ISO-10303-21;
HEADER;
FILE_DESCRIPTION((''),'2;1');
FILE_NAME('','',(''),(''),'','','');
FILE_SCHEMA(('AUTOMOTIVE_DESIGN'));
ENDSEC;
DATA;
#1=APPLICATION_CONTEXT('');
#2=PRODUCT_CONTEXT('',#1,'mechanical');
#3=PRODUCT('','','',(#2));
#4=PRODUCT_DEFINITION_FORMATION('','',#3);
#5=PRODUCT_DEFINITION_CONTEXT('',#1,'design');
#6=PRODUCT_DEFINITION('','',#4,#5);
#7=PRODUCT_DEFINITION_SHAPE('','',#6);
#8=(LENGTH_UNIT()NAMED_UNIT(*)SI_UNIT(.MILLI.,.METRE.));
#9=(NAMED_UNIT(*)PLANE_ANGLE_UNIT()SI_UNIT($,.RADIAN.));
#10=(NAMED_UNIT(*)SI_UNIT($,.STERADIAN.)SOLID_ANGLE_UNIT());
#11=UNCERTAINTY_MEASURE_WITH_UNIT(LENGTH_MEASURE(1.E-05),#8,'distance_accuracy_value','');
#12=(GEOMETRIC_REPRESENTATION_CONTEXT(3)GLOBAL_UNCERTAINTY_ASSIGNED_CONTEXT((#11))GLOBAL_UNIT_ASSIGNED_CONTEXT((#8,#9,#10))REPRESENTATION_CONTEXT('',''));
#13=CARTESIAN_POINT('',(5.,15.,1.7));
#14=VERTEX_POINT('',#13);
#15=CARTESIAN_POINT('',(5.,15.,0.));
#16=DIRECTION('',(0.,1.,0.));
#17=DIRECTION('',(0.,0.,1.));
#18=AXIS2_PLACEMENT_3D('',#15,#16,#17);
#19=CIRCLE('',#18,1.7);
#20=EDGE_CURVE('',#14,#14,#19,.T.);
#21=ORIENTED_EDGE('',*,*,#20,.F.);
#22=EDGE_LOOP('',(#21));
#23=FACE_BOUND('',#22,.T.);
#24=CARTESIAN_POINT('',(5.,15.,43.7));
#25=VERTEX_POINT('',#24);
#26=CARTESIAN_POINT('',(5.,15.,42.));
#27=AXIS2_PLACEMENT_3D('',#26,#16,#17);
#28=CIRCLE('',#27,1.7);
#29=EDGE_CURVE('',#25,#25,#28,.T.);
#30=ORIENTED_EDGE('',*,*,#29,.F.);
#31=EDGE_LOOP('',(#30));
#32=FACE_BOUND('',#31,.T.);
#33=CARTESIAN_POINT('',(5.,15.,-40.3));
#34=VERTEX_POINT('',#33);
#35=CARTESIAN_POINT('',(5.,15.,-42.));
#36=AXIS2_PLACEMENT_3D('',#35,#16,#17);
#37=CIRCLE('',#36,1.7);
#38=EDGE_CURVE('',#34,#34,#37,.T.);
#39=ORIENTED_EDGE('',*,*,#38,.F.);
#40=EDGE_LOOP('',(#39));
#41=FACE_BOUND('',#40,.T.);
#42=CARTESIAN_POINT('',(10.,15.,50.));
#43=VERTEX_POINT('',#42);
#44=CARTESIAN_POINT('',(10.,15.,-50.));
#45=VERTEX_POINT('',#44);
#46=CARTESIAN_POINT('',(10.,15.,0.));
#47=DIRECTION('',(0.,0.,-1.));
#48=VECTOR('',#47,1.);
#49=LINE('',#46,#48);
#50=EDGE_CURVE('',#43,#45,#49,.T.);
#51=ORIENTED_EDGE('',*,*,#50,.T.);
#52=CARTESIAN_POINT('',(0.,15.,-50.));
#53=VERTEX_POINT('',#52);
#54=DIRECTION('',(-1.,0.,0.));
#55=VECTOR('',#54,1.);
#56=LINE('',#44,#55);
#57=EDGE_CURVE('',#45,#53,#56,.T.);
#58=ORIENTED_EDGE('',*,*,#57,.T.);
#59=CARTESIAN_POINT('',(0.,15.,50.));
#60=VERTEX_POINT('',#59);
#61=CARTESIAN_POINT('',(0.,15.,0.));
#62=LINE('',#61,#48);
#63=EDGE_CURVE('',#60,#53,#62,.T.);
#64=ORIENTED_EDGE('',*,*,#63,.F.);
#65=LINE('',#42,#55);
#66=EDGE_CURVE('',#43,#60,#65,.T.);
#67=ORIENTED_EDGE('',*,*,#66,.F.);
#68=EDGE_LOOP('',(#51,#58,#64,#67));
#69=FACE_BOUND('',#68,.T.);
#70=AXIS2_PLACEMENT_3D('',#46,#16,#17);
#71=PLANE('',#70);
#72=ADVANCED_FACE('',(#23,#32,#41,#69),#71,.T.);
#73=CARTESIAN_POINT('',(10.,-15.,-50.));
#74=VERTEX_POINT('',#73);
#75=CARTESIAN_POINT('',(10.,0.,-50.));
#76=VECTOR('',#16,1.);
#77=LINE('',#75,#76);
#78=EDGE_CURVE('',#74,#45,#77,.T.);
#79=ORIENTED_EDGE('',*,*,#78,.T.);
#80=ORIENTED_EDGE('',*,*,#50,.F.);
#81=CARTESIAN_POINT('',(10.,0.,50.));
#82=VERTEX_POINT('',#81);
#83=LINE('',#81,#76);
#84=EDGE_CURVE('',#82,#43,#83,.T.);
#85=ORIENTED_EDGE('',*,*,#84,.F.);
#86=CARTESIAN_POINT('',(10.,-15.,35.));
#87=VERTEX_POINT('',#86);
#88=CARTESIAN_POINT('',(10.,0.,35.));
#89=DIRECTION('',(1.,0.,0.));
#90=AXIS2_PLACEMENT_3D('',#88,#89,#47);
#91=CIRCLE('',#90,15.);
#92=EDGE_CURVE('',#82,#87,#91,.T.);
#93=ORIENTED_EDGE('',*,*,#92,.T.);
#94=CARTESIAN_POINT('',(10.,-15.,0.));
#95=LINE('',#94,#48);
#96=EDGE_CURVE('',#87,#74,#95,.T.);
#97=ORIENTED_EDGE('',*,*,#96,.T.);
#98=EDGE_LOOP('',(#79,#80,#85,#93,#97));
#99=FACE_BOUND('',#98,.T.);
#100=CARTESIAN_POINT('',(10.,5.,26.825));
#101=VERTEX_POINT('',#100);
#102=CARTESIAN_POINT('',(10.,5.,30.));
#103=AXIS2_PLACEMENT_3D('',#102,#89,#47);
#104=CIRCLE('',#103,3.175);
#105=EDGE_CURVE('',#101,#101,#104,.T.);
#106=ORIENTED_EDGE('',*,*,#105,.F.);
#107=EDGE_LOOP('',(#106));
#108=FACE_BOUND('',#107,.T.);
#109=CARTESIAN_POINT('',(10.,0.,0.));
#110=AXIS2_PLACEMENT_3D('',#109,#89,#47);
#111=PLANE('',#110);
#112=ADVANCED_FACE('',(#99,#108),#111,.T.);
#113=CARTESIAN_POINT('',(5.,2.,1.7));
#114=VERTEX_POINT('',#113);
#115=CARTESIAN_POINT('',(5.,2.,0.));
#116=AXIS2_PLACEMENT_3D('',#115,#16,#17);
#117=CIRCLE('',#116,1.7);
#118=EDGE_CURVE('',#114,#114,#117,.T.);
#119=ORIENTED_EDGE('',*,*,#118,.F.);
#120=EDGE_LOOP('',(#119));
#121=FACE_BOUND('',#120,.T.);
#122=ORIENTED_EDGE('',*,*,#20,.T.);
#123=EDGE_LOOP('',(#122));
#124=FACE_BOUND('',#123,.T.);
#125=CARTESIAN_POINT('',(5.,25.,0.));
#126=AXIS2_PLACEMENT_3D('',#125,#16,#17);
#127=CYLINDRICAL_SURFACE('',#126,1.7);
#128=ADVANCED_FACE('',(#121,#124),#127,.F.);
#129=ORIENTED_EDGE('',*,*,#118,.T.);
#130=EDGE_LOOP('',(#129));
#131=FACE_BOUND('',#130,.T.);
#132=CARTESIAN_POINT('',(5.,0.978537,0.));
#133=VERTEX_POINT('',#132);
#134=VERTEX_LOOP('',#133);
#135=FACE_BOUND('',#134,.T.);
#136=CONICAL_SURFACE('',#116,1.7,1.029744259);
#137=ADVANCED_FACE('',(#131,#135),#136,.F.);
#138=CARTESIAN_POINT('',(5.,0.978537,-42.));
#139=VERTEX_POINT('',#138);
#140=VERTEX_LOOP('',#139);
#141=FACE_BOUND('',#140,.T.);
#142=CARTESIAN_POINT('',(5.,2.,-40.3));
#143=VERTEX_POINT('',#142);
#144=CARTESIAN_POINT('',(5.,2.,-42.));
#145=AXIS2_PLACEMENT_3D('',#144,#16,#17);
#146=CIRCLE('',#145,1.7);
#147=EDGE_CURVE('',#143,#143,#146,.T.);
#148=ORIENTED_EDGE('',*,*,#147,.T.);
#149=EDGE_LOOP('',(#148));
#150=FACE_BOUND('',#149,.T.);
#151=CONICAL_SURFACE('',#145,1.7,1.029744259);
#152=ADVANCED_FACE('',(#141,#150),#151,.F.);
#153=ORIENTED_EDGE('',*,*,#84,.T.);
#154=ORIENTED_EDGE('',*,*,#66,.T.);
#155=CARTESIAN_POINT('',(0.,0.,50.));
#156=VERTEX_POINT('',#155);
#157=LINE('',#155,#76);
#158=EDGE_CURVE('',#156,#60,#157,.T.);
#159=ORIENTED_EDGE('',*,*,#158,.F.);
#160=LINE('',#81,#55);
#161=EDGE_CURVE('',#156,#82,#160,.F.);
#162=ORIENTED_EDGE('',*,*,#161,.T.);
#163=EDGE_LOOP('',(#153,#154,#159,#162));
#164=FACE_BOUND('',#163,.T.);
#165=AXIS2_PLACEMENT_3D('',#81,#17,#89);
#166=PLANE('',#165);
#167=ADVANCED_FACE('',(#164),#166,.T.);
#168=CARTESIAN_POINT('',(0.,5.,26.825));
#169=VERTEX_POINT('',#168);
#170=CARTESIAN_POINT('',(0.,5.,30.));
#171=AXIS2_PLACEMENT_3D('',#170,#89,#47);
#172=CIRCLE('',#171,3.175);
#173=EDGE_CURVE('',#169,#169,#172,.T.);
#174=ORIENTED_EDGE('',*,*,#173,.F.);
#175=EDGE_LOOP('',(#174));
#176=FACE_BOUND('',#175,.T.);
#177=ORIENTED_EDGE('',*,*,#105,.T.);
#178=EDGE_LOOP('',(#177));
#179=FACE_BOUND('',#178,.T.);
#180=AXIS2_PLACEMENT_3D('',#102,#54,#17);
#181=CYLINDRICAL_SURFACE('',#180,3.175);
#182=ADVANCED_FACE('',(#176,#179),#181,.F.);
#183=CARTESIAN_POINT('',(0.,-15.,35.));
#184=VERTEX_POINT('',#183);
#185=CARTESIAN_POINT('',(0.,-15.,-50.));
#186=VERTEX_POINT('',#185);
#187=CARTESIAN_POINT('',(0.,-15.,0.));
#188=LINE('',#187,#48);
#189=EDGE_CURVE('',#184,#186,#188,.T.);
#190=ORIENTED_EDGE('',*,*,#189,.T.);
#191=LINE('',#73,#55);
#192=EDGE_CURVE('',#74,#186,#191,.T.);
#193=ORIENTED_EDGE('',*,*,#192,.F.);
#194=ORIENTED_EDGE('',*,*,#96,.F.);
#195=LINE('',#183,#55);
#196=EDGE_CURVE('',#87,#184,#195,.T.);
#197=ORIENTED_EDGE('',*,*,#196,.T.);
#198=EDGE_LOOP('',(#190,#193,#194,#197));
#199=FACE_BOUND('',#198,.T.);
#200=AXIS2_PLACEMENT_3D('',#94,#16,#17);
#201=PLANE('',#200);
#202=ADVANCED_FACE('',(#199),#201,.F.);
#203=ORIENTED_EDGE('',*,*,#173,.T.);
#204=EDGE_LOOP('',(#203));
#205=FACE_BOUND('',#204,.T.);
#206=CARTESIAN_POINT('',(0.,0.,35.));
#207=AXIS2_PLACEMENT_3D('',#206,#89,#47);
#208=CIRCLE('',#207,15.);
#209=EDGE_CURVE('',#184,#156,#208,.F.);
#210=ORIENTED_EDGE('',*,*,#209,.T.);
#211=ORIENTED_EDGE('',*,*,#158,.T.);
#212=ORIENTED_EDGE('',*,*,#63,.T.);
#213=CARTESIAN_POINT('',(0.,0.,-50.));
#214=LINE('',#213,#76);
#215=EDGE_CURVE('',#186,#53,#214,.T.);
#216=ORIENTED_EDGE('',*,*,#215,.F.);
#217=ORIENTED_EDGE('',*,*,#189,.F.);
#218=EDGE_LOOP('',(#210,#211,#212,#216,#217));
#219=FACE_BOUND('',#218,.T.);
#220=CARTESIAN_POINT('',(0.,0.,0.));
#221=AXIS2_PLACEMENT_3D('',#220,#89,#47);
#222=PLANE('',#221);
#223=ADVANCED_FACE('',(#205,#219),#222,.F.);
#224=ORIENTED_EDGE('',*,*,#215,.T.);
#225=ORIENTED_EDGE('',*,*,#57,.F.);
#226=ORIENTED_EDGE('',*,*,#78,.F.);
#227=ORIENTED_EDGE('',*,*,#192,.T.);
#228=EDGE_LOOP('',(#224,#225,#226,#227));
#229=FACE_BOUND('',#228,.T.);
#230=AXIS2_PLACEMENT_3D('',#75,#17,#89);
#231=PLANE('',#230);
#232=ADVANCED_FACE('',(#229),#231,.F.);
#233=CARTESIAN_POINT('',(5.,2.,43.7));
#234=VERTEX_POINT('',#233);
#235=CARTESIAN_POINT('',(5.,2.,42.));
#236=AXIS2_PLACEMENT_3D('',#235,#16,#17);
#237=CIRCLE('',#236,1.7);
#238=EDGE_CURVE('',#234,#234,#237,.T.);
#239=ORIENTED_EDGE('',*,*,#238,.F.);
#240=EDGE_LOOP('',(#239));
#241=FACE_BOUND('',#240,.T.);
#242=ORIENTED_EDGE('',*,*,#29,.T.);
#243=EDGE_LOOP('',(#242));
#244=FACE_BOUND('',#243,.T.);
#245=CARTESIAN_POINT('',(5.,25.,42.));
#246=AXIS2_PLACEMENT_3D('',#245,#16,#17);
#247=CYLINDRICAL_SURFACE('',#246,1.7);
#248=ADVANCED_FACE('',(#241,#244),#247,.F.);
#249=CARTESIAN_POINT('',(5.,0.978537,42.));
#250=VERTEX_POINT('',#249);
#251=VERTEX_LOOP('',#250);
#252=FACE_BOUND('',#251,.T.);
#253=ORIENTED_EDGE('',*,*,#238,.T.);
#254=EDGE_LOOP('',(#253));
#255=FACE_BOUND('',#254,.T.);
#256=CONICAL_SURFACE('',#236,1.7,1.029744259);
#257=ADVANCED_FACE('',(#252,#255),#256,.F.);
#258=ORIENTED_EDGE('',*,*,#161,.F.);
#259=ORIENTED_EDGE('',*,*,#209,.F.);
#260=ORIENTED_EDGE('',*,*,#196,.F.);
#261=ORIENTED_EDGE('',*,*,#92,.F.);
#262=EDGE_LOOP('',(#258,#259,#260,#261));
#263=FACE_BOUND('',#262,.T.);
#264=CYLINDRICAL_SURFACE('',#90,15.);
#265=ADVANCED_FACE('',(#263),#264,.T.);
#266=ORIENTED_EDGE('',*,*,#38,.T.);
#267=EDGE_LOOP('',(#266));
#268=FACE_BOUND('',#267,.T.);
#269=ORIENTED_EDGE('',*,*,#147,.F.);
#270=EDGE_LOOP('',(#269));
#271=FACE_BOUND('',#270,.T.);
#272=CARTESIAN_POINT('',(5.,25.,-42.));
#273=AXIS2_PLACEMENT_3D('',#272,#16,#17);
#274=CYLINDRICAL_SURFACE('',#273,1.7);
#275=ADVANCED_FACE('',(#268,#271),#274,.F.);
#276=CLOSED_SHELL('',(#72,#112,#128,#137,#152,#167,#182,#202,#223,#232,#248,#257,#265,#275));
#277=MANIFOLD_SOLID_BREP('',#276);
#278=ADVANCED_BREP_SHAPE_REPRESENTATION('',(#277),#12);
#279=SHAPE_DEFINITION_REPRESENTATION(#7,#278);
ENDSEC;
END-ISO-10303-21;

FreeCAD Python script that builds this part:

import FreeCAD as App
import Part
import Sketcher

V = App.Vector


def edges_at(feature, points):
    """Names of the edges that pass closest to the given points."""
    edges = feature.Shape.Edges
    near = lambda p: min(range(len(edges)), key=lambda i: edges[i].distToShape(Part.Vertex(*p))[0])
    return sorted({f"Edge{near(p) + 1}" for p in points})

doc = App.newDocument("Part")
params = doc.addObject("Spreadsheet::Sheet", "Params")
for row, (alias, value) in enumerate([
    ("sketch1_diameter", "6.35 mm"),
    ("sketch1_width", "30 mm"),
    ("sketch1_height", "100 mm"),
    ("pad1_length", "10 mm"),
    ("fillet_radius", "15 mm"),
    ("sketch2_diameter", "3.4 mm"),
    ("hole_diameter", "3.4 mm"),
    ("hole_depth", "23 mm"),
    ("hole_cbore_diameter", "6.5 mm"),
    ("hole_cbore_depth", "3 mm"),
], start=1):
    params.set(f"A{row}", alias)
    params.set(f"B{row}", "=" + value)
    params.setAlias(f"B{row}", alias)

body = doc.addObject("PartDesign::Body", "Body")

# Sketch on YZ plane
sketch1 = body.newObject("Sketcher::SketchObject", "Sketch")
sketch1.AttachmentSupport = (doc.getObject("YZ_Plane"), [""])
sketch1.MapMode = "FlatFace"
sketch1.addGeometry(Part.LineSegment(V(15, 50, 0), V(-15, 50, 0)), False)
sketch1.addGeometry(Part.LineSegment(V(-15, 50, 0), V(-15, -50, 0)), False)
sketch1.addGeometry(Part.LineSegment(V(-15, -50, 0), V(15, -50, 0)), False)
sketch1.addGeometry(Part.LineSegment(V(15, -50, 0), V(15, 50, 0)), False)
sketch1.addGeometry(Part.Circle(V(5, 30, 0), V(0, 0, 1), 3.175), False)
sketch1.addConstraint(Sketcher.Constraint("Coincident", 0, 2, 1, 1))
sketch1.addConstraint(Sketcher.Constraint("Coincident", 1, 2, 2, 1))
sketch1.addConstraint(Sketcher.Constraint("Coincident", 2, 2, 3, 1))
sketch1.addConstraint(Sketcher.Constraint("Coincident", 3, 2, 0, 1))
sketch1.addConstraint(Sketcher.Constraint("Horizontal", 0))
sketch1.addConstraint(Sketcher.Constraint("Vertical", 1))
sketch1.addConstraint(Sketcher.Constraint("Horizontal", 2))
sketch1.addConstraint(Sketcher.Constraint("Vertical", 3))
sketch1.addConstraint(Sketcher.Constraint("Symmetric", 0, 2, 2, 2, -1, 1))
sketch1.addConstraint(Sketcher.Constraint("Diameter", 4, 6.35))
sketch1.addConstraint(Sketcher.Constraint("DistanceX", 0, 2, 0, 1, 30.0))
sketch1.addConstraint(Sketcher.Constraint("DistanceY", 1, 2, 1, 1, 100.0))
sketch1.addConstraint(Sketcher.Constraint("DistanceX", -1, 1, 4, 3, 5.0))
sketch1.addConstraint(Sketcher.Constraint("DistanceY", -1, 1, 4, 3, 30.0))
sketch1.setExpression("Constraints[9]", "Params.sketch1_diameter")
sketch1.setExpression("Constraints[10]", "Params.sketch1_width")
sketch1.setExpression("Constraints[11]", "Params.sketch1_height")
pad1 = body.newObject("PartDesign::Pad", "Pad")
pad1.Profile = sketch1
pad1.setExpression("Length", "Params.pad1_length")
doc.recompute()

fillet = body.newObject("PartDesign::Fillet", "Fillet")
fillet.Base = (pad1, edges_at(pad1, [(5, -15, 50)]))
fillet.setExpression("Radius", "Params.fillet_radius")

# Sketch on XZ plane
sketch2 = body.newObject("Sketcher::SketchObject", "Sketch001")
sketch2.AttachmentSupport = (doc.getObject("XZ_Plane"), [""])
sketch2.MapMode = "FlatFace"
sketch2.AttachmentOffset = App.Placement(V(0, 0, -25), App.Rotation())
sketch2.addGeometry(Part.Circle(V(115, -42, 0), V(0, 0, 1), 1.7), False)
sketch2.addGeometry(Part.Circle(V(115, 36, 0), V(0, 0, 1), 1.7), False)
sketch2.addGeometry(Part.Circle(V(5, -42, 0), V(0, 0, 1), 1.7), False)
sketch2.addGeometry(Part.Circle(V(5, 42, 0), V(0, 0, 1), 1.7), False)
sketch2.addGeometry(Part.Circle(V(5, 0, 0), V(0, 0, 1), 1.7), False)
sketch2.addGeometry(Part.Circle(V(115, -3, 0), V(0, 0, 1), 1.7), False)
sketch2.addConstraint(Sketcher.Constraint("Equal", 0, 1))
sketch2.addConstraint(Sketcher.Constraint("Equal", 1, 2))
sketch2.addConstraint(Sketcher.Constraint("Equal", 2, 3))
sketch2.addConstraint(Sketcher.Constraint("Equal", 3, 4))
sketch2.addConstraint(Sketcher.Constraint("Equal", 4, 5))
sketch2.addConstraint(Sketcher.Constraint("Symmetric", 2, 3, 3, 3, -1))
sketch2.addConstraint(Sketcher.Constraint("PointOnObject", 4, 3, -1))
sketch2.addConstraint(Sketcher.Constraint("Horizontal", 0, 3, 2, 3))
sketch2.addConstraint(Sketcher.Constraint("Vertical", 0, 3, 1, 3))
sketch2.addConstraint(Sketcher.Constraint("Vertical", 3, 3, 4, 3))
sketch2.addConstraint(Sketcher.Constraint("Vertical", 1, 3, 5, 3))
sketch2.addConstraint(Sketcher.Constraint("Diameter", 0, 3.4))
sketch2.addConstraint(Sketcher.Constraint("DistanceX", -1, 1, 0, 3, 115.0))
sketch2.addConstraint(Sketcher.Constraint("DistanceY", 0, 3, -1, 1, 42.0))
sketch2.addConstraint(Sketcher.Constraint("DistanceY", -1, 1, 1, 3, 36.0))
sketch2.addConstraint(Sketcher.Constraint("DistanceX", -1, 1, 2, 3, 5.0))
sketch2.addConstraint(Sketcher.Constraint("DistanceY", 5, 3, -1, 1, 3.0))
sketch2.setExpression("Constraints[11]", "Params.sketch2_diameter")
doc.recompute()
hole = body.newObject("PartDesign::Hole", "Hole")
hole.Profile = sketch2
hole.ThreadType = "None"
hole.setExpression("Diameter", "Params.hole_diameter")
hole.DepthType = "Dimension"
hole.setExpression("Depth", "Params.hole_depth")
hole.DrillPoint = "Angled"
hole.DrillPointAngle = 118
hole.HoleCutType = "Counterbore"
hole.setExpression("HoleCutDiameter", "Params.hole_cbore_diameter")
hole.setExpression("HoleCutDepth", "Params.hole_cbore_depth")
hole.Reversed = True

doc.recompute()
